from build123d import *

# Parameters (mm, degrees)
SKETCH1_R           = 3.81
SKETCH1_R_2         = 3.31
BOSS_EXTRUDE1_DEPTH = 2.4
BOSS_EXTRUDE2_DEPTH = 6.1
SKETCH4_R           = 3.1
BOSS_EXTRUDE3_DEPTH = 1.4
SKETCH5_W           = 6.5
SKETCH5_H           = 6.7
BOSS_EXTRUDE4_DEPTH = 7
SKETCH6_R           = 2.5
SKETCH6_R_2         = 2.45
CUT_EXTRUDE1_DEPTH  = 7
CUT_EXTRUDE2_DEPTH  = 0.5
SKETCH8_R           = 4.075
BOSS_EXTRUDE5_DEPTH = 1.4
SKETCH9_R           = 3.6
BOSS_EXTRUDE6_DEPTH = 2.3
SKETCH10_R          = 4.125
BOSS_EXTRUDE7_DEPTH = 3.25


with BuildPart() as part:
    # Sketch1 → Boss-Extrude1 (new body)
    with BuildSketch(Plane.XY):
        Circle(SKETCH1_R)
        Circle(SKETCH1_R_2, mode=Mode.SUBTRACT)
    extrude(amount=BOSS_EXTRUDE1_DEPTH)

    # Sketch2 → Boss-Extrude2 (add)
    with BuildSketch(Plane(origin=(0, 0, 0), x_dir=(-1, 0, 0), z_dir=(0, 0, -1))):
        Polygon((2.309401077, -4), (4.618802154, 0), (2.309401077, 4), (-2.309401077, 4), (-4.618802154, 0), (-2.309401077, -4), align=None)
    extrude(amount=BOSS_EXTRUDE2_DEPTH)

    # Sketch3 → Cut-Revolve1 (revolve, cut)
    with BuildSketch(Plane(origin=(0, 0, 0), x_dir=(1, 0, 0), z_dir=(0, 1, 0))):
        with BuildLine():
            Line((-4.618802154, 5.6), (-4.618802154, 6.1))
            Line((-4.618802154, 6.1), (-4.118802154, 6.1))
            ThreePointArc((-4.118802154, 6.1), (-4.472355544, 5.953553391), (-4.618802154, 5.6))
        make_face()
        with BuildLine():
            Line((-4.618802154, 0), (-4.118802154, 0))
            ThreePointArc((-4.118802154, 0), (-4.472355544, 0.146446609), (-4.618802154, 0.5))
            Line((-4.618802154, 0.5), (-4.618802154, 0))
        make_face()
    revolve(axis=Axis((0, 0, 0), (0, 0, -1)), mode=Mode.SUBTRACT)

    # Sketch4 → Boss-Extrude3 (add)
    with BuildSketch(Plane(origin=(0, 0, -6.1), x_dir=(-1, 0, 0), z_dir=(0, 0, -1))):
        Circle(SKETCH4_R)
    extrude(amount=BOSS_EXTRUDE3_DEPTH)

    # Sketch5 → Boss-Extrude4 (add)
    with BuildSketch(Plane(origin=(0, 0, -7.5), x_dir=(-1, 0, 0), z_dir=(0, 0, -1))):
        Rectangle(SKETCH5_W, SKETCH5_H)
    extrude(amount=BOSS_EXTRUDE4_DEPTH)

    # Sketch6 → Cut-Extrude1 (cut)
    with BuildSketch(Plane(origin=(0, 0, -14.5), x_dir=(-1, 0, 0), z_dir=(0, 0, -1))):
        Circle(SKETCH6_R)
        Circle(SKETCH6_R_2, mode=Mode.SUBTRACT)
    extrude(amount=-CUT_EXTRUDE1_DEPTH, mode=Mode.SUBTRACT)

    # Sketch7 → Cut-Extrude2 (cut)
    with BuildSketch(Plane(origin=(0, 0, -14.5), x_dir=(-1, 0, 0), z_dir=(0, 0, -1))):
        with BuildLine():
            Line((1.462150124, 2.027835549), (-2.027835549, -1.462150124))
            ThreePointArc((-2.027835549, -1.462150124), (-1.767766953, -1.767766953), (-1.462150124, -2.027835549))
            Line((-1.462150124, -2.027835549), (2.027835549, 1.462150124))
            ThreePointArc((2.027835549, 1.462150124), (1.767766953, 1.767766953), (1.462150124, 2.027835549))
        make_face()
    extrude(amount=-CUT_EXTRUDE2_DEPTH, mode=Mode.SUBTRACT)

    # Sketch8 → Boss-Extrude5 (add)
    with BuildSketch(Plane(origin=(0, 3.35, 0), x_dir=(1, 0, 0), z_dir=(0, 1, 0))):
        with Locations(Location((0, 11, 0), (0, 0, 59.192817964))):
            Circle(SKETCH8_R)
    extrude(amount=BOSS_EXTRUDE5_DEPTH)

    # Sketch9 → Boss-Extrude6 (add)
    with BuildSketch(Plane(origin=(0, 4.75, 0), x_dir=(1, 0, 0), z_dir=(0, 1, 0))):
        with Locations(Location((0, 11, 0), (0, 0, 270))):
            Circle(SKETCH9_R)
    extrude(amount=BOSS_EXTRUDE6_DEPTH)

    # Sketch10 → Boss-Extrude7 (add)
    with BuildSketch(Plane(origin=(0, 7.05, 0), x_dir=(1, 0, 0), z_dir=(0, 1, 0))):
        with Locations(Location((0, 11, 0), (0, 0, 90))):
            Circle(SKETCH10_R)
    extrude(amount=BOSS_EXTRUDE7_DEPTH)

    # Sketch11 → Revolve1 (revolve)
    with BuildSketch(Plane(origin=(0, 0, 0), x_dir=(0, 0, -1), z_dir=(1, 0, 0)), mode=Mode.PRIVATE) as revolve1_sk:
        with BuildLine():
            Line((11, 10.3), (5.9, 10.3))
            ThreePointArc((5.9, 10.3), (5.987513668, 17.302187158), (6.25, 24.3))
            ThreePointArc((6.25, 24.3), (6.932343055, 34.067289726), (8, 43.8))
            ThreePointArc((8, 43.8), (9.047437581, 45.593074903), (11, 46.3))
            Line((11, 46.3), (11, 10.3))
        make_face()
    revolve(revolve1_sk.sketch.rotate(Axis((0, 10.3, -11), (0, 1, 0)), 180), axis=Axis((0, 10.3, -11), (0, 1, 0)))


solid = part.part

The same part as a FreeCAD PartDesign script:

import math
import FreeCAD as App
import Part
import Sketcher
from FreeCAD import Vector
Q = App.Units.Quantity

doc = App.newDocument("Part")
body = doc.addObject("PartDesign::Body", "Body")

# Sketch on XY plane
sketch1 = body.newObject("Sketcher::SketchObject", "Sketch")
sketch1.AttachmentSupport = (doc.getObject("XY_Plane"), [""])
sketch1.MapMode = "FlatFace"
sketch1.addGeometry([
    Part.Circle(Vector(0, 0, 0), Vector(0, 0, 1), 3.81),
    Part.Circle(Vector(0, 0, 0), Vector(0, 0, 1), 3.31),
], False)
sketch1.addConstraint([
    Sketcher.Constraint("Coincident", 0, 3, -1, 1),
    Sketcher.Constraint("Coincident", 1, 3, -1, 1),
    Sketcher.Constraint("Diameter", 0, 7.62),
    Sketcher.Constraint("Diameter", 1, 6.62),
])
pad1 = body.newObject("PartDesign::Pad", "Pad")
pad1.Profile = sketch1
pad1.Length = 2.4

# Sketch on XY plane
sketch2 = body.newObject("Sketcher::SketchObject", "Sketch001")
sketch2.AttachmentSupport = (doc.getObject("XY_Plane"), [""])
sketch2.MapMode = "FlatFace"
sketch2.addGeometry([
    Part.LineSegment(Vector(-2.309401, -4, 0), Vector(-4.618802, 0, 0)),  # 0
    Part.LineSegment(Vector(-4.618802, 0, 0), Vector(-2.309401, 4, 0)),  # 1
    Part.LineSegment(Vector(-2.309401, 4, 0), Vector(2.309401, 4, 0)),  # 2
    Part.LineSegment(Vector(2.309401, 4, 0), Vector(4.618802, 0, 0)),  # 3
    Part.LineSegment(Vector(4.618802, 0, 0), Vector(2.309401, -4, 0)),  # 4
    Part.LineSegment(Vector(2.309401, -4, 0), Vector(-2.309401, -4, 0)),  # 5
], False)
sketch2.addConstraint([
    Sketcher.Constraint("Coincident", 0, 2, 1, 1),
    Sketcher.Constraint("Coincident", 1, 2, 2, 1),
    Sketcher.Constraint("Coincident", 2, 2, 3, 1),
    Sketcher.Constraint("Coincident", 3, 2, 4, 1),
    Sketcher.Constraint("Coincident", 4, 2, 5, 1),
    Sketcher.Constraint("Coincident", 5, 2, 0, 1),
    Sketcher.Constraint("Horizontal", 2),
    Sketcher.Constraint("Horizontal", 5),
    Sketcher.Constraint("Symmetric", 0, 2, 3, 2, -1, 1),
    Sketcher.Constraint("Symmetric", 1, 2, 4, 2, -1, 1),
    Sketcher.Constraint("PointOnObject", 0, 2, -1),
    Sketcher.Constraint("Parallel", 0, 3),
    Sketcher.Constraint("Vertical", 2, 2, 4, 2),
    Sketcher.Constraint("Angle", 0, Q("120 deg")),
    Sketcher.Constraint("DistanceY", -1, 1, 1, 2, 4.0),
    Sketcher.Constraint("DistanceX", 1, 2, -1, 1, 2.309401),
])
pad2 = body.newObject("PartDesign::Pad", "Pad001")
pad2.Profile = sketch2
pad2.Length = 6.1
pad2.Reversed = True

# Sketch on XZ plane
sketch3 = body.newObject("Sketcher::SketchObject", "Sketch002")
sketch3.AttachmentSupport = (doc.getObject("XZ_Plane"), [""])
sketch3.MapMode = "FlatFace"
sketch3.addGeometry([
    Part.LineSegment(Vector(-4.618802, -6.1, 0), Vector(-4.618802, -5.6, 0)),  # 0
    Part.ArcOfCircle(Part.Circle(Vector(-4.118802, -5.6, 0), Vector(0, 0, 1), 0.5), math.radians(180), math.radians(270)),  # 1
    Part.LineSegment(Vector(-4.118802, -6.1, 0), Vector(-4.618802, -6.1, 0)),  # 2
    Part.LineSegment(Vector(-4.618802, 0, 0), Vector(-4.118802, 0, 0)),  # 3
    Part.ArcOfCircle(Part.Circle(Vector(-4.118802, -0.5, 0), Vector(0, 0, 1), 0.5), math.radians(90), math.radians(180)),  # 4
    Part.LineSegment(Vector(-4.618802, -0.5, 0), Vector(-4.618802, 0, 0)),  # 5
], False)
sketch3.addConstraint([
    Sketcher.Constraint("Tangent", 0, 2, 1, 1),
    Sketcher.Constraint("Tangent", 1, 2, 2, 1),
    Sketcher.Constraint("Coincident", 2, 2, 0, 1),
    Sketcher.Constraint("Tangent", 3, 2, 4, 1),
    Sketcher.Constraint("Tangent", 4, 2, 5, 1),
    Sketcher.Constraint("Coincident", 5, 2, 3, 1),
    Sketcher.Constraint("Vertical", 0),
    Sketcher.Constraint("Horizontal", 2),
    Sketcher.Constraint("Horizontal", 3),
    Sketcher.Constraint("Vertical", 5),
    Sketcher.Constraint("Equal", 1, 4),
    Sketcher.Constraint("PointOnObject", 3, 2, -1),
    Sketcher.Constraint("Vertical", 1, 3, 4, 3),
    Sketcher.Constraint("Radius", 1, 0.5),
    Sketcher.Constraint("DistanceY", 1, 3, -1, 1, 5.6),
    Sketcher.Constraint("DistanceX", 1, 3, -1, 1, 4.118802),
])
groove = body.newObject("PartDesign::Groove", "Groove")
groove.Profile = sketch3
groove.ReferenceAxis = (sketch3, ["V_Axis"])
groove.Angle = 360

# Sketch on XY plane
sketch4 = body.newObject("Sketcher::SketchObject", "Sketch003")
sketch4.AttachmentSupport = (doc.getObject("XY_Plane"), [""])
sketch4.MapMode = "FlatFace"
sketch4.AttachmentOffset = App.Placement(Vector(0, 0, -6.1), App.Rotation())
sketch4.addGeometry(Part.Circle(Vector(0, 0, 0), Vector(0, 0, 1), 3.1), False)
sketch4.addConstraint([
    Sketcher.Constraint("Coincident", 0, 3, -1, 1),
    Sketcher.Constraint("Diameter", 0, 6.2),
])
pad3 = body.newObject("PartDesign::Pad", "Pad002")
pad3.Profile = sketch4
pad3.Length = 1.4
pad3.Reversed = True

# Sketch on XY plane
sketch5 = body.newObject("Sketcher::SketchObject", "Sketch004")
sketch5.AttachmentSupport = (doc.getObject("XY_Plane"), [""])
sketch5.MapMode = "FlatFace"
sketch5.AttachmentOffset = App.Placement(Vector(0, 0, -7.5), App.Rotation())
sketch5.addGeometry([
    Part.LineSegment(Vector(3.25, 3.35, 0), Vector(3.25, -3.35, 0)),
    Part.LineSegment(Vector(3.25, -3.35, 0), Vector(-3.25, -3.35, 0)),
    Part.LineSegment(Vector(-3.25, -3.35, 0), Vector(-3.25, 3.35, 0)),
    Part.LineSegment(Vector(-3.25, 3.35, 0), Vector(3.25, 3.35, 0)),
], False)
sketch5.addConstraint([
    Sketcher.Constraint("Coincident", 0, 2, 1, 1),
    Sketcher.Constraint("Coincident", 1, 2, 2, 1),
    Sketcher.Constraint("Coincident", 2, 2, 3, 1),
    Sketcher.Constraint("Coincident", 3, 2, 0, 1),
    Sketcher.Constraint("Vertical", 0),
    Sketcher.Constraint("Horizontal", 1),
    Sketcher.Constraint("Vertical", 2),
    Sketcher.Constraint("Horizontal", 3),
    Sketcher.Constraint("Symmetric", 0, 2, 2, 2, -1, 1),
    Sketcher.Constraint("DistanceX", 1, 2, 1, 1, 6.5),
    Sketcher.Constraint("DistanceY", 0, 2, 0, 1, 6.7),
])
pad4 = body.newObject("PartDesign::Pad", "Pad003")
pad4.Profile = sketch5
pad4.Length = 7
pad4.Reversed = True

# Sketch on XY plane
sketch6 = body.newObject("Sketcher::SketchObject", "Sketch005")
sketch6.AttachmentSupport = (doc.getObject("XY_Plane"), [""])
sketch6.MapMode = "FlatFace"
sketch6.AttachmentOffset = App.Placement(Vector(0, 0, -14.5), App.Rotation())
sketch6.addGeometry([
    Part.Circle(Vector(0, 0, 0), Vector(0, 0, 1), 2.5),
    Part.Circle(Vector(0, 0, 0), Vector(0, 0, 1), 2.45),
], False)
sketch6.addConstraint([
    Sketcher.Constraint("Coincident", 0, 3, -1, 1),
    Sketcher.Constraint("Coincident", 1, 3, -1, 1),
    Sketcher.Constraint("Diameter", 0, 5.0),
    Sketcher.Constraint("Diameter", 1, 4.9),
])
pocket1 = body.newObject("PartDesign::Pocket", "Pocket")
pocket1.Profile = sketch6
pocket1.Length = 7
pocket1.Reversed = True

# Sketch on XY plane
sketch7 = body.newObject("Sketcher::SketchObject", "Sketch006")
sketch7.AttachmentSupport = (doc.getObject("XY_Plane"), [""])
sketch7.MapMode = "FlatFace"
sketch7.AttachmentOffset = App.Placement(Vector(0, 0, -14.5), App.Rotation())
sketch7.addGeometry([
    Part.LineSegment(Vector(-1.46215, 2.027836, 0), Vector(2.027836, -1.46215, 0)),
    Part.ArcOfCircle(Part.Circle(Vector(0, 0, 0), Vector(0, 0, 1), 2.5), math.radians(-54.206896), math.radians(-35.793104)),
    Part.LineSegment(Vector(1.46215, -2.027836, 0), Vector(-2.027836, 1.46215, 0)),
    Part.ArcOfCircle(Part.Circle(Vector(0, 0, 0), Vector(0, 0, 1), 2.5), math.radians(125.793104), math.radians(144.206896)),
], False)
sketch7.addConstraint([
    Sketcher.Constraint("Coincident", 0, 2, 1, 2),
    Sketcher.Constraint("Coincident", 1, 1, 2, 1),
    Sketcher.Constraint("Coincident", 2, 2, 3, 2),
    Sketcher.Constraint("Coincident", 3, 1, 0, 1),
    Sketcher.Constraint("Coincident", 1, 3, -1, 1),
    Sketcher.Constraint("Coincident", 3, 3, -1, 1),
    Sketcher.Constraint("Equal", 1, 3),
    Sketcher.Constraint("Parallel", 0, 2),
    Sketcher.Constraint("Equal", 0, 2),
    Sketcher.Constraint("Radius", 1, 2.5),
    Sketcher.Constraint("Angle", 0, Q("-45 deg")),
    Sketcher.Constraint("DistanceY", 0, 2, 2, 2, 2.9243),
])
pocket2 = body.newObject("PartDesign::Pocket", "Pocket001")
pocket2.Profile = sketch7
pocket2.Length = 0.5
pocket2.Reversed = True

# Sketch on XZ plane
sketch8 = body.newObject("Sketcher::SketchObject", "Sketch007")
sketch8.AttachmentSupport = (doc.getObject("XZ_Plane"), [""])
sketch8.MapMode = "FlatFace"
sketch8.AttachmentOffset = App.Placement(Vector(0, 0, -3.35), App.Rotation())
sketch8.addGeometry(Part.Circle(Vector(0, -11, 0), Vector(0, 0, 1), 4.075), False)
sketch8.addConstraint([
    Sketcher.Constraint("PointOnObject", 0, 3, -2),
    Sketcher.Constraint("Diameter", 0, 8.15),
    Sketcher.Constraint("DistanceY", 0, 3, -1, 1, 11.0),
])
pad5 = body.newObject("PartDesign::Pad", "Pad004")
pad5.Profile = sketch8
pad5.Length = 1.4
pad5.Reversed = True

# Sketch on XZ plane
sketch9 = body.newObject("Sketcher::SketchObject", "Sketch008")
sketch9.AttachmentSupport = (doc.getObject("XZ_Plane"), [""])
sketch9.MapMode = "FlatFace"
sketch9.AttachmentOffset = App.Placement(Vector(0, 0, -4.75), App.Rotation())
sketch9.addGeometry(Part.Circle(Vector(0, -11, 0), Vector(0, 0, 1), 3.6), False)
sketch9.addConstraint([
    Sketcher.Constraint("PointOnObject", 0, 3, -2),
    Sketcher.Constraint("Diameter", 0, 7.2),
    Sketcher.Constraint("DistanceY", 0, 3, -1, 1, 11.0),
])
pad6 = body.newObject("PartDesign::Pad", "Pad005")
pad6.Profile = sketch9
pad6.Length = 2.3
pad6.Reversed = True

# Sketch on XZ plane
sketch10 = body.newObject("Sketcher::SketchObject", "Sketch009")
sketch10.AttachmentSupport = (doc.getObject("XZ_Plane"), [""])
sketch10.MapMode = "FlatFace"
sketch10.AttachmentOffset = App.Placement(Vector(0, 0, -7.05), App.Rotation())
sketch10.addGeometry(Part.Circle(Vector(0, -11, 0), Vector(0, 0, 1), 4.125), False)
sketch10.addConstraint([
    Sketcher.Constraint("PointOnObject", 0, 3, -2),
    Sketcher.Constraint("Diameter", 0, 8.25),
    Sketcher.Constraint("DistanceY", 0, 3, -1, 1, 11.0),
])
pad7 = body.newObject("PartDesign::Pad", "Pad006")
pad7.Profile = sketch10
pad7.Length = 3.25
pad7.Reversed = True

# Sketch on YZ plane
sketch11 = body.newObject("Sketcher::SketchObject", "Sketch010")
sketch11.AttachmentSupport = (doc.getObject("YZ_Plane"), [""])
sketch11.MapMode = "FlatFace"
sketch11.addGeometry([
    Part.LineSegment(Vector(10.3, -5.9, 0), Vector(10.3, -11, 0)),  # 0
    Part.LineSegment(Vector(10.3, -11, 0), Vector(46.3, -11, 0)),  # 1
    Part.ArcOfCircle(Part.Circle(Vector(43.25, -11, 0), Vector(0, 0, 1), 3.05), math.radians(0), math.radians(79.611142)),  # 2
    Part.ArcOfCircle(Part.Circle(Vector(11.917606, -253.74311, 0), Vector(0, 0, 1), 247.80267), math.radians(82.60781), math.radians(87.135808)),  # 3
    Part.ArcOfCircle(Part.Circle(Vector(10.3, -286.075001, 0), Vector(0, 0, 1), 280.175001), math.radians(87.135808), math.radians(90)),  # 4
], False)
sketch11.addGeometry(Part.LineSegment(Vector(10.3, -11, 0), Vector(46.3, -11, 0)), True)  # axis
sketch11.addConstraint([
    Sketcher.Constraint("Coincident", 0, 2, 1, 1),
    Sketcher.Constraint("Coincident", 1, 2, 2, 1),
    Sketcher.Constraint("Coincident", 2, 2, 3, 1),
    Sketcher.Constraint("Tangent", 3, 2, 4, 1),
    Sketcher.Constraint("Coincident", 4, 2, 0, 1),
    Sketcher.Constraint("Vertical", 0),
    Sketcher.Constraint("Horizontal", 1),
    Sketcher.Constraint("Horizontal", 5),
    Sketcher.Constraint("Coincident", 5, 1, 0, 2),
    Sketcher.Constraint("Horizontal", 2, 3, 0, 2),
    Sketcher.Constraint("Vertical", 4, 3, 0, 2),
    Sketcher.Constraint("Equal", 1, 5),
    Sketcher.Constraint("DistanceX", 1, 1, 1, 2, 36.0),
    Sketcher.Constraint("Radius", 2, 3.05),
    Sketcher.Constraint("DistanceY", 0, 2, 0, 1, 5.1),
    Sketcher.Constraint("DistanceY", 2, 3, -1, 1, 11.0),
    Sketcher.Constraint("DistanceY", 2, 2, -1, 1, 8.0),
    Sketcher.Constraint("Radius", 4, 280.175001),
    Sketcher.Constraint("DistanceX", -1, 1, 4, 3, 10.3),
    Sketcher.Constraint("Radius", 3, 247.80267),
])
revolution = body.newObject("PartDesign::Revolution", "Revolution")
revolution.Profile = sketch11
revolution.ReferenceAxis = (sketch11, ["Axis0"])
revolution.Angle = 360

doc.recompute()
